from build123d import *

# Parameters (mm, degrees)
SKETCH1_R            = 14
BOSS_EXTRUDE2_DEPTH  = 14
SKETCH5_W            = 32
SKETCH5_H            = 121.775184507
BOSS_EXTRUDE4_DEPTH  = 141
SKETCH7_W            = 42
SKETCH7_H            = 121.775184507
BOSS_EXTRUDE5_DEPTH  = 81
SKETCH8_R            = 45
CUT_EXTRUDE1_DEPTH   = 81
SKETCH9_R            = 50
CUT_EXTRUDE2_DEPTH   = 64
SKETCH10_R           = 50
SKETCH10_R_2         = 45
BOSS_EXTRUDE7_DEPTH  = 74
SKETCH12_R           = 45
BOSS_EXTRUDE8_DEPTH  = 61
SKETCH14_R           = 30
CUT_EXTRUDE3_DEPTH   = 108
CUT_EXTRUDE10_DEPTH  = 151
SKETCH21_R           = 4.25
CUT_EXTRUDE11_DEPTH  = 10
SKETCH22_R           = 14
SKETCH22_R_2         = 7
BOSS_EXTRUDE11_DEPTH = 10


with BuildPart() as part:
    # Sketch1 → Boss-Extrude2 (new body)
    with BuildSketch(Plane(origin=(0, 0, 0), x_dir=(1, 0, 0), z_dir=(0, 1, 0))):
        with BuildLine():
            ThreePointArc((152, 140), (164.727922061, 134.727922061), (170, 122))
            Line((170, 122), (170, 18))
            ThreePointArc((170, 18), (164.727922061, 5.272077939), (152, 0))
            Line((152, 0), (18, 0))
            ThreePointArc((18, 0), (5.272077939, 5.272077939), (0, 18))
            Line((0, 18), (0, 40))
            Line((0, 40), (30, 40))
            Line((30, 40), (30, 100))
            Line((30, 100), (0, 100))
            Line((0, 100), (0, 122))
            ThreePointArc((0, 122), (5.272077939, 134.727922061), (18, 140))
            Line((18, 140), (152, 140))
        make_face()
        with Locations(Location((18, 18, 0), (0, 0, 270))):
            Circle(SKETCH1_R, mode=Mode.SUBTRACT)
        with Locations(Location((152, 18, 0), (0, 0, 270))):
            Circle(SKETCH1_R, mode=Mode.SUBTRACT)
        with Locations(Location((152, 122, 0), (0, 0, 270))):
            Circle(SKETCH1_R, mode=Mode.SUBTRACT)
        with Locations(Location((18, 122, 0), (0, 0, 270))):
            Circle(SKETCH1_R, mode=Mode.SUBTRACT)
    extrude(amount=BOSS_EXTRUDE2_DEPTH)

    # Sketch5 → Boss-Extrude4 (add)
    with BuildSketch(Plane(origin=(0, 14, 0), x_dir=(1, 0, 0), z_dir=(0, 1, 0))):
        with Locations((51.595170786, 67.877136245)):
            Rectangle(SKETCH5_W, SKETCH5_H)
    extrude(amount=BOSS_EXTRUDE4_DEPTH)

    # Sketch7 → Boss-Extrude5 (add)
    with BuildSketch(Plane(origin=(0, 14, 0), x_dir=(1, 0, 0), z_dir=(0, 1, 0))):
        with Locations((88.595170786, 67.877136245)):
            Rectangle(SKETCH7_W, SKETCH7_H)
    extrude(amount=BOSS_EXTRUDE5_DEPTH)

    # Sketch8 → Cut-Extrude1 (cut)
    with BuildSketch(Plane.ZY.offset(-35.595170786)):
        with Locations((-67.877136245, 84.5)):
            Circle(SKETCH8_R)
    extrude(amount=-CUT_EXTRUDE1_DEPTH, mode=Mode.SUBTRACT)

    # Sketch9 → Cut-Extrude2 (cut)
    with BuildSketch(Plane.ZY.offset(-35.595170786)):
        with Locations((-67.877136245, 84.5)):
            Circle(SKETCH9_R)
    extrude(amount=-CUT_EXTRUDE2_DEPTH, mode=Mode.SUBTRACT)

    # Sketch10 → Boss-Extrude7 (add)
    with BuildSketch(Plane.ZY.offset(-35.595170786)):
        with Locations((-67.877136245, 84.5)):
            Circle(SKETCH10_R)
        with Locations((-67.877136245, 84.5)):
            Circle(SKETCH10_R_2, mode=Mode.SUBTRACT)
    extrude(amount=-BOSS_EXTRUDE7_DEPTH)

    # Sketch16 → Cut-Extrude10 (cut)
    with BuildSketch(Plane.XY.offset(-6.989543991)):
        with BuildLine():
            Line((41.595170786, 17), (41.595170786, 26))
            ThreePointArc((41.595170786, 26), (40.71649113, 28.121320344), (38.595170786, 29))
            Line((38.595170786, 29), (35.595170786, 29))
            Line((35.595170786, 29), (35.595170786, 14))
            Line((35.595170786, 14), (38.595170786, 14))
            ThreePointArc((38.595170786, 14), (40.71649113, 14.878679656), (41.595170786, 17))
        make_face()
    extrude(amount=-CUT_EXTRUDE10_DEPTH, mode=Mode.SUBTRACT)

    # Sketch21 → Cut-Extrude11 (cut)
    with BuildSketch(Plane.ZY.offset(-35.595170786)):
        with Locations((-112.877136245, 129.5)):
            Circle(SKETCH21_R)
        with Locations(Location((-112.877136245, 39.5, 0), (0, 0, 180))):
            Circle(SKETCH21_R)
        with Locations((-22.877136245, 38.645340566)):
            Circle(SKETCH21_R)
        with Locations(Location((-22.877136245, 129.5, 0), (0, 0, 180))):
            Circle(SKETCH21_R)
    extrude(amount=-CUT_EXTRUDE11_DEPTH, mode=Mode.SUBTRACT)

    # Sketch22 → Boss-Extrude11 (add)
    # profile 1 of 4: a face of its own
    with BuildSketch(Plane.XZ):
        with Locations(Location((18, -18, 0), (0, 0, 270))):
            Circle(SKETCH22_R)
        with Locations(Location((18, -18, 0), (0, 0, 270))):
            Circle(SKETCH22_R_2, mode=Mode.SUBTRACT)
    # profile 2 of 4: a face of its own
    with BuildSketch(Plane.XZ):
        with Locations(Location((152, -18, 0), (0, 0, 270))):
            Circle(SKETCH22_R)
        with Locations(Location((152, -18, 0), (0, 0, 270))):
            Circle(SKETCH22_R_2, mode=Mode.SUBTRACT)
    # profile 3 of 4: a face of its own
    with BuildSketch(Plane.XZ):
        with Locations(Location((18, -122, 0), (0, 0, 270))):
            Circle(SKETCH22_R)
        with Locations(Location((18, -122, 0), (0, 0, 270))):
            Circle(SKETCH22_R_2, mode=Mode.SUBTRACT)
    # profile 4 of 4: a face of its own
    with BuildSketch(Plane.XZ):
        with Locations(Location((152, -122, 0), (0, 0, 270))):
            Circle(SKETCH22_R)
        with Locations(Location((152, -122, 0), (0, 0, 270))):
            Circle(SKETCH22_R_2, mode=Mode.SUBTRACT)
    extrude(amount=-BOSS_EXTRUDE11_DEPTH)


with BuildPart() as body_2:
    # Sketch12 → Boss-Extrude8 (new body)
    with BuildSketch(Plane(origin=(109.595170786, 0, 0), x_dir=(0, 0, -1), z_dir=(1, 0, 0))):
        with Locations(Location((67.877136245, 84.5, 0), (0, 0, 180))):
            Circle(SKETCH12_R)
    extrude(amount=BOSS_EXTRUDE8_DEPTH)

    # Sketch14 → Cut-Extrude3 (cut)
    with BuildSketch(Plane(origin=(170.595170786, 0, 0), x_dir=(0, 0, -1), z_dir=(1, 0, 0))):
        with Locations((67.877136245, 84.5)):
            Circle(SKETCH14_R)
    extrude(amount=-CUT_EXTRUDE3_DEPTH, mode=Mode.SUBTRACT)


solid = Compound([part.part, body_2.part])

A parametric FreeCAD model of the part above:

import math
import FreeCAD as App
import Part
import Sketcher


def add_polygon(sketch, points):
    """Adds a closed chain of lines whose ends are joined by coincident constraints."""
    first, n = sketch.GeometryCount, len(points)
    for a, b in zip(points, points[1:] + points[:1]):
        sketch.addGeometry(Part.LineSegment(App.Vector(*a, 0), App.Vector(*b, 0)), False)
    for i in range(n):
        sketch.addConstraint(Sketcher.Constraint("Coincident", first + i, 2, first + (i + 1) % n, 1))

doc = App.newDocument("Part")
body = doc.addObject("PartDesign::Body", "Body")

# Sketch on XZ plane
sketch1 = body.newObject("Sketcher::SketchObject", "Sketch")
sketch1.AttachmentSupport = (doc.getObject("XZ_Plane"), [""])
sketch1.MapMode = "FlatFace"
sketch1.addGeometry(Part.ArcOfCircle(Part.Circle(App.Vector(152, -122, 0), App.Vector(0, 0, 1), 18), math.radians(-90), math.radians(0)), False)
sketch1.addGeometry(Part.LineSegment(App.Vector(152, -140, 0), App.Vector(18, -140, 0)), False)
sketch1.addGeometry(Part.ArcOfCircle(Part.Circle(App.Vector(18, -122, 0), App.Vector(0, 0, 1), 18), math.radians(-180), math.radians(-90)), False)
sketch1.addGeometry(Part.LineSegment(App.Vector(0, -122, 0), App.Vector(0, -100, 0)), False)
sketch1.addGeometry(Part.LineSegment(App.Vector(0, -100, 0), App.Vector(30, -100, 0)), False)
sketch1.addGeometry(Part.LineSegment(App.Vector(30, -100, 0), App.Vector(30, -40, 0)), False)
sketch1.addGeometry(Part.LineSegment(App.Vector(30, -40, 0), App.Vector(0, -40, 0)), False)
sketch1.addGeometry(Part.LineSegment(App.Vector(0, -40, 0), App.Vector(0, -18, 0)), False)
sketch1.addGeometry(Part.ArcOfCircle(Part.Circle(App.Vector(18, -18, 0), App.Vector(0, 0, 1), 18), math.radians(90), math.radians(180)), False)
sketch1.addGeometry(Part.LineSegment(App.Vector(18, 0, 0), App.Vector(152, 0, 0)), False)
sketch1.addGeometry(Part.ArcOfCircle(Part.Circle(App.Vector(152, -18, 0), App.Vector(0, 0, 1), 18), math.radians(0), math.radians(90)), False)
sketch1.addGeometry(Part.LineSegment(App.Vector(170, -18, 0), App.Vector(170, -122, 0)), False)
sketch1.addGeometry(Part.Circle(App.Vector(152, -18, 0), App.Vector(0, 0, 1), 14), False)
sketch1.addGeometry(Part.Circle(App.Vector(18, -18, 0), App.Vector(0, 0, 1), 14), False)
sketch1.addGeometry(Part.Circle(App.Vector(152, -122, 0), App.Vector(0, 0, 1), 14), False)
sketch1.addGeometry(Part.Circle(App.Vector(18, -122, 0), App.Vector(0, 0, 1), 14), False)
sketch1.addConstraint(Sketcher.Constraint("Tangent", 0, 1, 1, 1))
sketch1.addConstraint(Sketcher.Constraint("Tangent", 1, 2, 2, 2))
sketch1.addConstraint(Sketcher.Constraint("Tangent", 2, 1, 3, 1))
sketch1.addConstraint(Sketcher.Constraint("Coincident", 3, 2, 4, 1))
sketch1.addConstraint(Sketcher.Constraint("Coincident", 4, 2, 5, 1))
sketch1.addConstraint(Sketcher.Constraint("Coincident", 5, 2, 6, 1))
sketch1.addConstraint(Sketcher.Constraint("Coincident", 6, 2, 7, 1))
sketch1.addConstraint(Sketcher.Constraint("Tangent", 7, 2, 8, 2))
sketch1.addConstraint(Sketcher.Constraint("Tangent", 8, 1, 9, 1))
sketch1.addConstraint(Sketcher.Constraint("Tangent", 9, 2, 10, 2))
sketch1.addConstraint(Sketcher.Constraint("Tangent", 10, 1, 11, 1))
sketch1.addConstraint(Sketcher.Constraint("Tangent", 11, 2, 0, 2))
sketch1.addConstraint(Sketcher.Constraint("Horizontal", 1))
sketch1.addConstraint(Sketcher.Constraint("Vertical", 3))
sketch1.addConstraint(Sketcher.Constraint("Horizontal", 4))
sketch1.addConstraint(Sketcher.Constraint("Vertical", 5))
sketch1.addConstraint(Sketcher.Constraint("Horizontal", 6))
sketch1.addConstraint(Sketcher.Constraint("Vertical", 7))
sketch1.addConstraint(Sketcher.Constraint("Horizontal", 9))
sketch1.addConstraint(Sketcher.Constraint("Vertical", 11))
sketch1.addConstraint(Sketcher.Constraint("Coincident", 12, 3, 10, 3))
sketch1.addConstraint(Sketcher.Constraint("Coincident", 13, 3, 8, 3))
sketch1.addConstraint(Sketcher.Constraint("Coincident", 14, 3, 0, 3))
sketch1.addConstraint(Sketcher.Constraint("Coincident", 15, 3, 2, 3))
sketch1.addConstraint(Sketcher.Constraint("Equal", 0, 2))
sketch1.addConstraint(Sketcher.Constraint("Equal", 2, 8))
sketch1.addConstraint(Sketcher.Constraint("Equal", 8, 10))
sketch1.addConstraint(Sketcher.Constraint("Equal", 12, 13))
sketch1.addConstraint(Sketcher.Constraint("Equal", 13, 14))
sketch1.addConstraint(Sketcher.Constraint("Equal", 14, 15))
sketch1.addConstraint(Sketcher.Constraint("PointOnObject", 2, 1, -2))
sketch1.addConstraint(Sketcher.Constraint("PointOnObject", 6, 2, -2))
sketch1.addConstraint(Sketcher.Constraint("PointOnObject", 8, 1, -1))
sketch1.addConstraint(Sketcher.Constraint("Equal", 3, 7))
sketch1.addConstraint(Sketcher.Constraint("Diameter", 12, 28.0))
sketch1.addConstraint(Sketcher.Constraint("Radius", 0, 18.0))
sketch1.addConstraint(Sketcher.Constraint("DistanceX", 1, 2, 1, 1, 134.0))
sketch1.addConstraint(Sketcher.Constraint("DistanceX", 4, 1, 4, 2, 30.0))
sketch1.addConstraint(Sketcher.Constraint("DistanceY", 3, 1, 3, 2, 22.0))
sketch1.addConstraint(Sketcher.Constraint("DistanceY", 5, 1, 5, 2, 60.0))
pad1 = body.newObject("PartDesign::Pad", "Pad")
pad1.Profile = sketch1
pad1.Length = 14
pad1.Reversed = True

# Sketch on XZ plane
sketch2 = body.newObject("Sketcher::SketchObject", "Sketch001")
sketch2.AttachmentSupport = (doc.getObject("XZ_Plane"), [""])
sketch2.MapMode = "FlatFace"
sketch2.AttachmentOffset = App.Placement(App.Vector(0, 0, -14), App.Rotation())
add_polygon(sketch2, [(36, -129), (36, -7), (68, -7), (68, -129)])  # lines 0-3
sketch2.addConstraint(Sketcher.Constraint("Vertical", 0))
sketch2.addConstraint(Sketcher.Constraint("Horizontal", 1))
sketch2.addConstraint(Sketcher.Constraint("Vertical", 2))
sketch2.addConstraint(Sketcher.Constraint("Horizontal", 3))
sketch2.addConstraint(Sketcher.Constraint("DistanceX", 1, 1, 1, 2, 32.0))
sketch2.addConstraint(Sketcher.Constraint("DistanceY", 0, 1, 0, 2, 121.775185))
sketch2.addConstraint(Sketcher.Constraint("DistanceX", -1, 1, 0, 2, 35.595171))
sketch2.addConstraint(Sketcher.Constraint("DistanceY", 2, 2, -1, 1, 128.764728))
pad2 = body.newObject("PartDesign::Pad", "Pad001")
pad2.Profile = sketch2
pad2.Length = 141
pad2.Reversed = True

# Sketch on XZ plane
sketch3 = body.newObject("Sketcher::SketchObject", "Sketch002")
sketch3.AttachmentSupport = (doc.getObject("XZ_Plane"), [""])
sketch3.MapMode = "FlatFace"
sketch3.AttachmentOffset = App.Placement(App.Vector(0, 0, -14), App.Rotation())
add_polygon(sketch3, [(68, -129), (68, -7), (110, -7), (110, -129)])  # lines 0-3
sketch3.addConstraint(Sketcher.Constraint("Vertical", 0))
sketch3.addConstraint(Sketcher.Constraint("Horizontal", 1))
sketch3.addConstraint(Sketcher.Constraint("Vertical", 2))
sketch3.addConstraint(Sketcher.Constraint("Horizontal", 3))
sketch3.addConstraint(Sketcher.Constraint("DistanceX", 1, 1, 1, 2, 42.0))
sketch3.addConstraint(Sketcher.Constraint("DistanceY", 0, 1, 0, 2, 121.775185))
sketch3.addConstraint(Sketcher.Constraint("DistanceX", -1, 1, 0, 2, 67.595171))
sketch3.addConstraint(Sketcher.Constraint("DistanceY", 2, 2, -1, 1, 128.764728))
pad3 = body.newObject("PartDesign::Pad", "Pad002")
pad3.Profile = sketch3
pad3.Length = 81
pad3.Reversed = True

# Sketch on YZ plane
sketch4 = body.newObject("Sketcher::SketchObject", "Sketch003")
sketch4.AttachmentSupport = (doc.getObject("YZ_Plane"), [""])
sketch4.MapMode = "FlatFace"
sketch4.AttachmentOffset = App.Placement(App.Vector(0, 0, 35.595171), App.Rotation())
sketch4.addGeometry(Part.Circle(App.Vector(84, -68, 0), App.Vector(0, 0, 1), 45), False)
sketch4.addConstraint(Sketcher.Constraint("Diameter", 0, 90.0))
sketch4.addConstraint(Sketcher.Constraint("DistanceX", -1, 1, 0, 3, 84.5))
sketch4.addConstraint(Sketcher.Constraint("DistanceY", 0, 3, -1, 1, 67.877136))
pocket1 = body.newObject("PartDesign::Pocket", "Pocket")
pocket1.Profile = sketch4
pocket1.Length = 81
pocket1.Reversed = True

# Sketch on YZ plane
sketch5 = body.newObject("Sketcher::SketchObject", "Sketch004")
sketch5.AttachmentSupport = (doc.getObject("YZ_Plane"), [""])
sketch5.MapMode = "FlatFace"
sketch5.AttachmentOffset = App.Placement(App.Vector(0, 0, 35.595171), App.Rotation())
sketch5.addGeometry(Part.Circle(App.Vector(84, -68, 0), App.Vector(0, 0, 1), 50), False)
sketch5.addConstraint(Sketcher.Constraint("Diameter", 0, 100.0))
sketch5.addConstraint(Sketcher.Constraint("DistanceX", -1, 1, 0, 3, 84.5))
sketch5.addConstraint(Sketcher.Constraint("DistanceY", 0, 3, -1, 1, 67.877136))
pocket2 = body.newObject("PartDesign::Pocket", "Pocket001")
pocket2.Profile = sketch5
pocket2.Length = 64
pocket2.Reversed = True

# Sketch on YZ plane
sketch6 = body.newObject("Sketcher::SketchObject", "Sketch005")
sketch6.AttachmentSupport = (doc.getObject("YZ_Plane"), [""])
sketch6.MapMode = "FlatFace"
sketch6.AttachmentOffset = App.Placement(App.Vector(0, 0, 35.595171), App.Rotation())
sketch6.addGeometry(Part.Circle(App.Vector(84, -68, 0), App.Vector(0, 0, 1), 50), False)
sketch6.addGeometry(Part.Circle(App.Vector(84, -68, 0), App.Vector(0, 0, 1), 45), False)
sketch6.addConstraint(Sketcher.Constraint("Coincident", 1, 3, 0, 3))
sketch6.addConstraint(Sketcher.Constraint("Diameter", 0, 100.0))
sketch6.addConstraint(Sketcher.Constraint("Diameter", 1, 90.0))
sketch6.addConstraint(Sketcher.Constraint("DistanceX", -1, 1, 0, 3, 84.5))
sketch6.addConstraint(Sketcher.Constraint("DistanceY", 0, 3, -1, 1, 67.877136))
pad4 = body.newObject("PartDesign::Pad", "Pad003")
pad4.Profile = sketch6
pad4.Length = 74

# Sketch on XY plane
sketch7 = body.newObject("Sketcher::SketchObject", "Sketch006")
sketch7.AttachmentSupport = (doc.getObject("XY_Plane"), [""])
sketch7.MapMode = "FlatFace"
sketch7.AttachmentOffset = App.Placement(App.Vector(0, 0, -6.989544), App.Rotation())
sketch7.addGeometry(Part.LineSegment(App.Vector(41.6, 17, 0), App.Vector(41.6, 26, 0)), False)
sketch7.addGeometry(Part.ArcOfCircle(Part.Circle(App.Vector(38.6, 26, 0), App.Vector(0, 0, 1), 3), math.radians(0), math.radians(90)), False)
sketch7.addGeometry(Part.LineSegment(App.Vector(38.6, 29, 0), App.Vector(35.6, 29, 0)), False)
sketch7.addGeometry(Part.LineSegment(App.Vector(35.6, 29, 0), App.Vector(35.6, 14, 0)), False)
sketch7.addGeometry(Part.LineSegment(App.Vector(35.6, 14, 0), App.Vector(38.6, 14, 0)), False)
sketch7.addGeometry(Part.ArcOfCircle(Part.Circle(App.Vector(38.6, 17, 0), App.Vector(0, 0, 1), 3), math.radians(-90), math.radians(0)), False)
sketch7.addConstraint(Sketcher.Constraint("Tangent", 0, 2, 1, 1))
sketch7.addConstraint(Sketcher.Constraint("Tangent", 1, 2, 2, 1))
sketch7.addConstraint(Sketcher.Constraint("Coincident", 2, 2, 3, 1))
sketch7.addConstraint(Sketcher.Constraint("Coincident", 3, 2, 4, 1))
sketch7.addConstraint(Sketcher.Constraint("Tangent", 4, 2, 5, 1))
sketch7.addConstraint(Sketcher.Constraint("Tangent", 5, 2, 0, 1))
sketch7.addConstraint(Sketcher.Constraint("Vertical", 0))
sketch7.addConstraint(Sketcher.Constraint("Horizontal", 2))
sketch7.addConstraint(Sketcher.Constraint("Vertical", 3))
sketch7.addConstraint(Sketcher.Constraint("Horizontal", 4))
sketch7.addConstraint(Sketcher.Constraint("Equal", 1, 5))
sketch7.addConstraint(Sketcher.Constraint("Radius", 1, 3.0))
sketch7.addConstraint(Sketcher.Constraint("DistanceX", 2, 2, 2, 1, 3.0))
sketch7.addConstraint(Sketcher.Constraint("DistanceY", 0, 1, 0, 2, 9.0))
sketch7.addConstraint(Sketcher.Constraint("DistanceY", -1, 1, 1, 3, 26.0))
sketch7.addConstraint(Sketcher.Constraint("DistanceX", -1, 1, 1, 3, 38.595171))
pocket3 = body.newObject("PartDesign::Pocket", "Pocket002")
pocket3.Profile = sketch7
pocket3.Length = 151

# Sketch on YZ plane
sketch8 = body.newObject("Sketcher::SketchObject", "Sketch007")
sketch8.AttachmentSupport = (doc.getObject("YZ_Plane"), [""])
sketch8.MapMode = "FlatFace"
sketch8.AttachmentOffset = App.Placement(App.Vector(0, 0, 35.595171), App.Rotation())
sketch8.addGeometry(Part.Circle(App.Vector(129.5, -112.9, 0), App.Vector(0, 0, 1), 4.2), False)
sketch8.addGeometry(Part.Circle(App.Vector(39.5, -112.9, 0), App.Vector(0, 0, 1), 4.2), False)
sketch8.addGeometry(Part.Circle(App.Vector(38.6, -22.9, 0), App.Vector(0, 0, 1), 4.2), False)
sketch8.addGeometry(Part.Circle(App.Vector(129.5, -22.9, 0), App.Vector(0, 0, 1), 4.2), False)
sketch8.addConstraint(Sketcher.Constraint("Equal", 0, 1))
sketch8.addConstraint(Sketcher.Constraint("Equal", 1, 2))
sketch8.addConstraint(Sketcher.Constraint("Equal", 2, 3))
sketch8.addConstraint(Sketcher.Constraint("Horizontal", 0, 3, 1, 3))
sketch8.addConstraint(Sketcher.Constraint("Horizontal", 2, 3, 3, 3))
sketch8.addConstraint(Sketcher.Constraint("Vertical", 0, 3, 3, 3))
sketch8.addConstraint(Sketcher.Constraint("Diameter", 0, 8.5))
sketch8.addConstraint(Sketcher.Constraint("DistanceX", 1, 3, 0, 3, 90.0))
sketch8.addConstraint(Sketcher.Constraint("DistanceY", 1, 3, 2, 3, 90.0))
sketch8.addConstraint(Sketcher.Constraint("DistanceX", -1, 1, 0, 3, 129.5))
sketch8.addConstraint(Sketcher.Constraint("DistanceX", -1, 1, 2, 3, 38.645341))
sketch8.addConstraint(Sketcher.Constraint("DistanceY", 0, 3, -1, 1, 112.877136))
pocket4 = body.newObject("PartDesign::Pocket", "Pocket003")
pocket4.Profile = sketch8
pocket4.Length = 10
pocket4.Reversed = True

# Sketch on XZ plane
sketch9 = body.newObject("Sketcher::SketchObject", "Sketch008")
sketch9.AttachmentSupport = (doc.getObject("XZ_Plane"), [""])
sketch9.MapMode = "FlatFace"
sketch9.addGeometry(Part.Circle(App.Vector(18, -18, 0), App.Vector(0, 0, 1), 14), False)
sketch9.addGeometry(Part.Circle(App.Vector(18, -18, 0), App.Vector(0, 0, 1), 7), False)
sketch9.addGeometry(Part.Circle(App.Vector(152, -18, 0), App.Vector(0, 0, 1), 14), False)
sketch9.addGeometry(Part.Circle(App.Vector(152, -18, 0), App.Vector(0, 0, 1), 7), False)
sketch9.addGeometry(Part.Circle(App.Vector(18, -122, 0), App.Vector(0, 0, 1), 14), False)
sketch9.addGeometry(Part.Circle(App.Vector(18, -122, 0), App.Vector(0, 0, 1), 7), False)
sketch9.addGeometry(Part.Circle(App.Vector(152, -122, 0), App.Vector(0, 0, 1), 14), False)
sketch9.addGeometry(Part.Circle(App.Vector(152, -122, 0), App.Vector(0, 0, 1), 7), False)
sketch9.addConstraint(Sketcher.Constraint("Coincident", 1, 3, 0, 3))
sketch9.addConstraint(Sketcher.Constraint("Coincident", 3, 3, 2, 3))
sketch9.addConstraint(Sketcher.Constraint("Coincident", 5, 3, 4, 3))
sketch9.addConstraint(Sketcher.Constraint("Coincident", 7, 3, 6, 3))
sketch9.addConstraint(Sketcher.Constraint("Equal", 0, 2))
sketch9.addConstraint(Sketcher.Constraint("Equal", 1, 3))
sketch9.addConstraint(Sketcher.Constraint("Equal", 2, 4))
sketch9.addConstraint(Sketcher.Constraint("Equal", 3, 5))
sketch9.addConstraint(Sketcher.Constraint("Equal", 4, 6))
sketch9.addConstraint(Sketcher.Constraint("Equal", 5, 7))
sketch9.addConstraint(Sketcher.Constraint("Horizontal", 1, 3, 2, 3))
sketch9.addConstraint(Sketcher.Constraint("Horizontal", 5, 3, 6, 3))
sketch9.addConstraint(Sketcher.Constraint("Vertical", 1, 3, 4, 3))
sketch9.addConstraint(Sketcher.Constraint("Vertical", 3, 3, 6, 3))
sketch9.addConstraint(Sketcher.Constraint("Diameter", 0, 28.0))
sketch9.addConstraint(Sketcher.Constraint("Diameter", 1, 14.0))
sketch9.addConstraint(Sketcher.Constraint("DistanceX", -1, 1, 0, 3, 18.0))
sketch9.addConstraint(Sketcher.Constraint("DistanceY", 0, 3, -1, 1, 18.0))
sketch9.addConstraint(Sketcher.Constraint("DistanceX", -1, 1, 2, 3, 152.0))
sketch9.addConstraint(Sketcher.Constraint("DistanceY", 4, 3, -1, 1, 122.0))
pad5 = body.newObject("PartDesign::Pad", "Pad004")
pad5.Profile = sketch9
pad5.Length = 10
pad5.Reversed = True
body2 = doc.addObject("PartDesign::Body", "Body001")

# Sketch on YZ plane
sketch10 = body2.newObject("Sketcher::SketchObject", "Sketch009")
sketch10.AttachmentSupport = (doc.getObject("YZ_Plane001"), [""])
sketch10.MapMode = "FlatFace"
sketch10.AttachmentOffset = App.Placement(App.Vector(0, 0, 109.595171), App.Rotation())
sketch10.addGeometry(Part.Circle(App.Vector(84, -68, 0), App.Vector(0, 0, 1), 45), False)
sketch10.addConstraint(Sketcher.Constraint("Diameter", 0, 90.0))
sketch10.addConstraint(Sketcher.Constraint("DistanceX", -1, 1, 0, 3, 84.5))
sketch10.addConstraint(Sketcher.Constraint("DistanceY", 0, 3, -1, 1, 67.877136))
pad6 = body2.newObject("PartDesign::Pad", "Pad005")
pad6.Profile = sketch10
pad6.Length = 61

# Sketch on YZ plane
sketch11 = body2.newObject("Sketcher::SketchObject", "Sketch010")
sketch11.AttachmentSupport = (doc.getObject("YZ_Plane001"), [""])
sketch11.MapMode = "FlatFace"
sketch11.AttachmentOffset = App.Placement(App.Vector(0, 0, 170.595171), App.Rotation())
sketch11.addGeometry(Part.Circle(App.Vector(84, -68, 0), App.Vector(0, 0, 1), 30), False)
sketch11.addConstraint(Sketcher.Constraint("Diameter", 0, 60.0))
sketch11.addConstraint(Sketcher.Constraint("DistanceX", -1, 1, 0, 3, 84.5))
sketch11.addConstraint(Sketcher.Constraint("DistanceY", 0, 3, -1, 1, 67.877136))
pocket5 = body2.newObject("PartDesign::Pocket", "Pocket004")
pocket5.Profile = sketch11
pocket5.Length = 108

doc.recompute()
